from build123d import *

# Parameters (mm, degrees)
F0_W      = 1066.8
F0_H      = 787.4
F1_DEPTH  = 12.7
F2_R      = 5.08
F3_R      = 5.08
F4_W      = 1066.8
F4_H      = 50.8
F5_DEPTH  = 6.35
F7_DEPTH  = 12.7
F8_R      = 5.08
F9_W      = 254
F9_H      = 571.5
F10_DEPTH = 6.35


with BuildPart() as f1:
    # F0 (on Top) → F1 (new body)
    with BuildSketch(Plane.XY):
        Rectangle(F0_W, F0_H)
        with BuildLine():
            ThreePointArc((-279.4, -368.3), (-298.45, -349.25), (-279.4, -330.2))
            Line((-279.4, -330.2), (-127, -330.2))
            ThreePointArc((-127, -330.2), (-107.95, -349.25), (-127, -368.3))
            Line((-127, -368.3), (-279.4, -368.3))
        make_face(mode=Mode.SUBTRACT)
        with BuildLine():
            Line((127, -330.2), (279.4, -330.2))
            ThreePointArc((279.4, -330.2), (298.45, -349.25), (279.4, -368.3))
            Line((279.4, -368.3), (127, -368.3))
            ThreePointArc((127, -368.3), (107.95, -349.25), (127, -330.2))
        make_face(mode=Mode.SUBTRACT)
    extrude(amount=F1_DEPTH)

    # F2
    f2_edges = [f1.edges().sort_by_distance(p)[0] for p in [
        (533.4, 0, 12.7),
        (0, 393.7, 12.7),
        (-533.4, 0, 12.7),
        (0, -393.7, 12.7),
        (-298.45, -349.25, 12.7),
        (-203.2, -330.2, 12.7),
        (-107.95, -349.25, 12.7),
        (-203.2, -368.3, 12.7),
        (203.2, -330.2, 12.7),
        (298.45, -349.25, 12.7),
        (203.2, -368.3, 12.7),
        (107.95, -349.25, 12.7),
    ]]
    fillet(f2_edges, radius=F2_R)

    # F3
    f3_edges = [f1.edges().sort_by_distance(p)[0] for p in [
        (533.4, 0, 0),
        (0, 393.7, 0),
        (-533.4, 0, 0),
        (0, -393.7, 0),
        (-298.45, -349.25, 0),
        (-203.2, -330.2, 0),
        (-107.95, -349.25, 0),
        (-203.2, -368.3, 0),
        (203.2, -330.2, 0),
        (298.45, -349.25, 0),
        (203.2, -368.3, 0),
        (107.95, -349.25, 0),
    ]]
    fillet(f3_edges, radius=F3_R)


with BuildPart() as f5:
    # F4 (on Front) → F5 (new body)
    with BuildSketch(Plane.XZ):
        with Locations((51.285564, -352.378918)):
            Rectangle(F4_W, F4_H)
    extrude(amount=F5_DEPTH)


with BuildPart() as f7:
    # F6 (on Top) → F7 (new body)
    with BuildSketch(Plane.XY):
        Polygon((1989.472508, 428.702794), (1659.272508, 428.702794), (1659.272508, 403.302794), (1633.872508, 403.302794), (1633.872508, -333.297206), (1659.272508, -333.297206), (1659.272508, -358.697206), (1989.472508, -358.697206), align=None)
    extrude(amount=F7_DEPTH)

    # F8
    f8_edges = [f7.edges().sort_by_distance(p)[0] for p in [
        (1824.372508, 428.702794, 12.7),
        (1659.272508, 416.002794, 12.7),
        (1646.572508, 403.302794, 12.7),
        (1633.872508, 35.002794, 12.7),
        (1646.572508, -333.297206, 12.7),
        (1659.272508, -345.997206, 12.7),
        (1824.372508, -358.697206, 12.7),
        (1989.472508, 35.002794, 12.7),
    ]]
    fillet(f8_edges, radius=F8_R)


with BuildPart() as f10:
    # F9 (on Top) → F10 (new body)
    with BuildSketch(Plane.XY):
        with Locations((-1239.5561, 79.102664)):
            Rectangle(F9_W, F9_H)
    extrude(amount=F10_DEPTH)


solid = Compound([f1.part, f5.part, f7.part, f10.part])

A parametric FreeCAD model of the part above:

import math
import FreeCAD as App
import Part
import Sketcher
from FreeCAD import Vector
Q = App.Units.Quantity


def edges_at(feature, points):
    """Names of the edges that pass closest to the given points."""
    edges = feature.Shape.Edges
    near = lambda p: min(range(len(edges)), key=lambda i: edges[i].distToShape(Part.Vertex(*p))[0])
    return sorted({f"Edge{near(p) + 1}" for p in points})


def add_polygon(sketch, points):
    """Adds a closed chain of lines whose ends are joined by coincident constraints."""
    first, n = sketch.GeometryCount, len(points)
    for a, b in zip(points, points[1:] + points[:1]):
        sketch.addGeometry(Part.LineSegment(App.Vector(*a, 0), App.Vector(*b, 0)), False)
    for i in range(n):
        sketch.addConstraint(Sketcher.Constraint("Coincident", first + i, 2, first + (i + 1) % n, 1))

doc = App.newDocument("Part")
body = doc.addObject("PartDesign::Body", "Body")

sketch1 = body.newObject("Sketcher::SketchObject", "Sketch")
sketch1.AttachmentSupport = (doc.getObject("XY_Plane"), [""])
sketch1.MapMode = "FlatFace"
add_polygon(sketch1, [(-533.4, 393.7), (-533.4, -393.7), (533.4, -393.7), (533.4, 393.7)])
sketch1.addGeometry(Part.LineSegment(Vector(-127, -368.3, 0), Vector(-279.4, -368.3, 0)), False)
sketch1.addGeometry(Part.ArcOfCircle(Part.Circle(Vector(-279.4, -349.25, 0), Vector(0, 0, 1), 19.05), math.radians(90), math.radians(270)), False)
sketch1.addGeometry(Part.LineSegment(Vector(-279.4, -330.2, 0), Vector(-127, -330.2, 0)), False)
sketch1.addGeometry(Part.ArcOfCircle(Part.Circle(Vector(-127, -349.25, 0), Vector(0, 0, 1), 19.05), math.radians(-90), math.radians(90)), False)
sketch1.addGeometry(Part.ArcOfCircle(Part.Circle(Vector(127, -349.25, 0), Vector(0, 0, 1), 19.05), math.radians(90), math.radians(270)), False)
sketch1.addGeometry(Part.LineSegment(Vector(127, -330.2, 0), Vector(279.4, -330.2, 0)), False)
sketch1.addGeometry(Part.ArcOfCircle(Part.Circle(Vector(279.4, -349.25, 0), Vector(0, 0, 1), 19.05), math.radians(-90), math.radians(90)), False)
sketch1.addGeometry(Part.LineSegment(Vector(279.4, -368.3, 0), Vector(127, -368.3, 0)), False)
sketch1.addConstraint(Sketcher.Constraint("Tangent", 4, 2, 5, 2))
sketch1.addConstraint(Sketcher.Constraint("Tangent", 5, 1, 6, 1))
sketch1.addConstraint(Sketcher.Constraint("Tangent", 6, 2, 7, 2))
sketch1.addConstraint(Sketcher.Constraint("Tangent", 7, 1, 4, 1))
sketch1.addConstraint(Sketcher.Constraint("Tangent", 8, 1, 9, 1))
sketch1.addConstraint(Sketcher.Constraint("Tangent", 9, 2, 10, 2))
sketch1.addConstraint(Sketcher.Constraint("Tangent", 10, 1, 11, 1))
sketch1.addConstraint(Sketcher.Constraint("Tangent", 11, 2, 8, 2))
sketch1.addConstraint(Sketcher.Constraint("Vertical", 0))
sketch1.addConstraint(Sketcher.Constraint("Horizontal", 1))
sketch1.addConstraint(Sketcher.Constraint("Vertical", 2))
sketch1.addConstraint(Sketcher.Constraint("Horizontal", 3))
sketch1.addConstraint(Sketcher.Constraint("Horizontal", 4))
sketch1.addConstraint(Sketcher.Constraint("Horizontal", 6))
sketch1.addConstraint(Sketcher.Constraint("Horizontal", 9))
sketch1.addConstraint(Sketcher.Constraint("Horizontal", 11))
sketch1.addConstraint(Sketcher.Constraint("Equal", 7, 8))
sketch1.addConstraint(Sketcher.Constraint("Symmetric", 0, 2, 2, 2, -1, 1))
sketch1.addConstraint(Sketcher.Constraint("Symmetric", 7, 3, 8, 3, -2))
sketch1.addConstraint(Sketcher.Constraint("Equal", 6, 9))
sketch1.addConstraint(Sketcher.Constraint("DistanceX", 1, 1, 1, 2, Q("42 in")))
sketch1.addConstraint(Sketcher.Constraint("DistanceX", 4, 2, 4, 1, Q("6 in")))
sketch1.addConstraint(Sketcher.Constraint("DistanceY", 0, 2, 0, 1, Q("31 in")))
sketch1.addConstraint(Sketcher.Constraint("Radius", 5, Q("0.75 in")))
sketch1.addConstraint(Sketcher.Constraint("DistanceX", 5, 3, -1, 1, Q("11 in")))
sketch1.addConstraint(Sketcher.Constraint("DistanceY", 5, 1, -1, 1, Q("13 in")))
pad1 = body.newObject("PartDesign::Pad", "Pad")
pad1.Profile = sketch1
pad1.Length = Q("0.5 in")
doc.recompute()

fillet = body.newObject("PartDesign::Fillet", "Fillet")
fillet.Base = (pad1, edges_at(pad1, [
    (533.4, 0, 12.7),
    (0, 393.7, 12.7),
    (-533.4, 0, 12.7),
    (0, -393.7, 12.7),
    (-298.45, -349.25, 12.7),
    (-203.2, -330.2, 12.7),
    (-107.95, -349.25, 12.7),
    (-203.2, -368.3, 12.7),
    (203.2, -330.2, 12.7),
    (298.45, -349.25, 12.7),
    (203.2, -368.3, 12.7),
    (107.95, -349.25, 12.7),
]))
fillet.Radius = Q("0.2 in")
doc.recompute()

fillet2 = body.newObject("PartDesign::Fillet", "Fillet001")
fillet2.Base = (fillet, edges_at(fillet, [
    (533.4, 0, 0),
    (0, 393.7, 0),
    (-533.4, 0, 0),
    (0, -393.7, 0),
    (-298.45, -349.25, 0),
    (-203.2, -330.2, 0),
    (-107.95, -349.25, 0),
    (-203.2, -368.3, 0),
    (203.2, -330.2, 0),
    (298.45, -349.25, 0),
    (203.2, -368.3, 0),
    (107.95, -349.25, 0),
]))
fillet2.Radius = Q("0.2 in")
body2 = doc.addObject("PartDesign::Body", "Body001")

sketch2 = body2.newObject("Sketcher::SketchObject", "Sketch001")
sketch2.AttachmentSupport = (doc.getObject("XZ_Plane001"), [""])
sketch2.MapMode = "FlatFace"
add_polygon(sketch2, [(-482.114436, -326.978918), (-482.114436, -377.778918), (584.685564, -377.778918), (584.685564, -326.978918)])
sketch2.addConstraint(Sketcher.Constraint("Vertical", 0))
sketch2.addConstraint(Sketcher.Constraint("Horizontal", 1))
sketch2.addConstraint(Sketcher.Constraint("Vertical", 2))
sketch2.addConstraint(Sketcher.Constraint("Horizontal", 3))
sketch2.addConstraint(Sketcher.Constraint("DistanceX", 1, 1, 1, 2, Q("42 in")))
sketch2.addConstraint(Sketcher.Constraint("DistanceY", 0, 2, 0, 1, Q("2 in")))
sketch2.addConstraint(Sketcher.Constraint("DistanceY", 2, 2, -1, 1, Q("326.978918 mm")))
sketch2.addConstraint(Sketcher.Constraint("DistanceX", 0, 2, -1, 1, Q("482.114436 mm")))
pad2 = body2.newObject("PartDesign::Pad", "Pad001")
pad2.Profile = sketch2
pad2.Length = Q("0.25 in")
body3 = doc.addObject("PartDesign::Body", "Body002")

sketch3 = body3.newObject("Sketcher::SketchObject", "Sketch002")
sketch3.AttachmentSupport = (doc.getObject("XY_Plane002"), [""])
sketch3.MapMode = "FlatFace"
add_polygon(sketch3, [(1989.472508, 428.702794), (1659.272508, 428.702794), (1659.272508, 403.302794), (1633.872508, 403.302794), (1633.872508, -333.297206), (1659.272508, -333.297206), (1659.272508, -358.697206), (1989.472508, -358.697206)])
sketch3.addConstraint(Sketcher.Constraint("Horizontal", 0))
sketch3.addConstraint(Sketcher.Constraint("Vertical", 1))
sketch3.addConstraint(Sketcher.Constraint("Horizontal", 2))
sketch3.addConstraint(Sketcher.Constraint("Vertical", 3))
sketch3.addConstraint(Sketcher.Constraint("Horizontal", 4))
sketch3.addConstraint(Sketcher.Constraint("Vertical", 5))
sketch3.addConstraint(Sketcher.Constraint("Horizontal", 6))
sketch3.addConstraint(Sketcher.Constraint("Vertical", 7))
sketch3.addConstraint(Sketcher.Constraint("Vertical", 1, 2, 4, 2))
sketch3.addConstraint(Sketcher.Constraint("Equal", 4, 1))
sketch3.addConstraint(Sketcher.Constraint("Equal", 1, 5))
sketch3.addConstraint(Sketcher.Constraint("DistanceX", 0, 2, 0, 1, Q("13 in")))
sketch3.addConstraint(Sketcher.Constraint("DistanceX", 2, 2, 2, 1, Q("1 in")))
sketch3.addConstraint(Sketcher.Constraint("DistanceY", 3, 2, 3, 1, Q("29 in")))
sketch3.addConstraint(Sketcher.Constraint("DistanceX", -1, 1, 0, 2, Q("1659.272508 mm")))
sketch3.addConstraint(Sketcher.Constraint("DistanceY", -1, 1, 0, 2, Q("428.702794 mm")))
pad3 = body3.newObject("PartDesign::Pad", "Pad002")
pad3.Profile = sketch3
pad3.Length = Q("0.5 in")
doc.recompute()

fillet3 = body3.newObject("PartDesign::Fillet", "Fillet002")
fillet3.Base = (pad3, edges_at(pad3, [
    (1824.373, 428.703, 12.7),
    (1659.273, 416.003, 12.7),
    (1646.573, 403.303, 12.7),
    (1633.873, 35.003, 12.7),
    (1646.573, -333.297, 12.7),
    (1659.273, -345.997, 12.7),
    (1824.373, -358.697, 12.7),
    (1989.473, 35.003, 12.7),
]))
fillet3.Radius = Q("0.2 in")
body4 = doc.addObject("PartDesign::Body", "Body003")

sketch4 = body4.newObject("Sketcher::SketchObject", "Sketch003")
sketch4.AttachmentSupport = (doc.getObject("XY_Plane003"), [""])
sketch4.MapMode = "FlatFace"
add_polygon(sketch4, [(-1366.5561, 364.852664), (-1366.5561, -206.647336), (-1112.5561, -206.647336), (-1112.5561, 364.852664)])
sketch4.addConstraint(Sketcher.Constraint("Vertical", 0))
sketch4.addConstraint(Sketcher.Constraint("Horizontal", 1))
sketch4.addConstraint(Sketcher.Constraint("Vertical", 2))
sketch4.addConstraint(Sketcher.Constraint("Horizontal", 3))
sketch4.addConstraint(Sketcher.Constraint("DistanceX", 1, 1, 1, 2, Q("10 in")))
sketch4.addConstraint(Sketcher.Constraint("DistanceY", 0, 2, 0, 1, Q("22.5 in")))
sketch4.addConstraint(Sketcher.Constraint("DistanceX", 0, 2, -1, 1, Q("1366.5561 mm")))
sketch4.addConstraint(Sketcher.Constraint("DistanceY", 0, 2, -1, 1, Q("206.647336 mm")))
pad4 = body4.newObject("PartDesign::Pad", "Pad003")
pad4.Profile = sketch4
pad4.Length = Q("0.25 in")

doc.recompute()
